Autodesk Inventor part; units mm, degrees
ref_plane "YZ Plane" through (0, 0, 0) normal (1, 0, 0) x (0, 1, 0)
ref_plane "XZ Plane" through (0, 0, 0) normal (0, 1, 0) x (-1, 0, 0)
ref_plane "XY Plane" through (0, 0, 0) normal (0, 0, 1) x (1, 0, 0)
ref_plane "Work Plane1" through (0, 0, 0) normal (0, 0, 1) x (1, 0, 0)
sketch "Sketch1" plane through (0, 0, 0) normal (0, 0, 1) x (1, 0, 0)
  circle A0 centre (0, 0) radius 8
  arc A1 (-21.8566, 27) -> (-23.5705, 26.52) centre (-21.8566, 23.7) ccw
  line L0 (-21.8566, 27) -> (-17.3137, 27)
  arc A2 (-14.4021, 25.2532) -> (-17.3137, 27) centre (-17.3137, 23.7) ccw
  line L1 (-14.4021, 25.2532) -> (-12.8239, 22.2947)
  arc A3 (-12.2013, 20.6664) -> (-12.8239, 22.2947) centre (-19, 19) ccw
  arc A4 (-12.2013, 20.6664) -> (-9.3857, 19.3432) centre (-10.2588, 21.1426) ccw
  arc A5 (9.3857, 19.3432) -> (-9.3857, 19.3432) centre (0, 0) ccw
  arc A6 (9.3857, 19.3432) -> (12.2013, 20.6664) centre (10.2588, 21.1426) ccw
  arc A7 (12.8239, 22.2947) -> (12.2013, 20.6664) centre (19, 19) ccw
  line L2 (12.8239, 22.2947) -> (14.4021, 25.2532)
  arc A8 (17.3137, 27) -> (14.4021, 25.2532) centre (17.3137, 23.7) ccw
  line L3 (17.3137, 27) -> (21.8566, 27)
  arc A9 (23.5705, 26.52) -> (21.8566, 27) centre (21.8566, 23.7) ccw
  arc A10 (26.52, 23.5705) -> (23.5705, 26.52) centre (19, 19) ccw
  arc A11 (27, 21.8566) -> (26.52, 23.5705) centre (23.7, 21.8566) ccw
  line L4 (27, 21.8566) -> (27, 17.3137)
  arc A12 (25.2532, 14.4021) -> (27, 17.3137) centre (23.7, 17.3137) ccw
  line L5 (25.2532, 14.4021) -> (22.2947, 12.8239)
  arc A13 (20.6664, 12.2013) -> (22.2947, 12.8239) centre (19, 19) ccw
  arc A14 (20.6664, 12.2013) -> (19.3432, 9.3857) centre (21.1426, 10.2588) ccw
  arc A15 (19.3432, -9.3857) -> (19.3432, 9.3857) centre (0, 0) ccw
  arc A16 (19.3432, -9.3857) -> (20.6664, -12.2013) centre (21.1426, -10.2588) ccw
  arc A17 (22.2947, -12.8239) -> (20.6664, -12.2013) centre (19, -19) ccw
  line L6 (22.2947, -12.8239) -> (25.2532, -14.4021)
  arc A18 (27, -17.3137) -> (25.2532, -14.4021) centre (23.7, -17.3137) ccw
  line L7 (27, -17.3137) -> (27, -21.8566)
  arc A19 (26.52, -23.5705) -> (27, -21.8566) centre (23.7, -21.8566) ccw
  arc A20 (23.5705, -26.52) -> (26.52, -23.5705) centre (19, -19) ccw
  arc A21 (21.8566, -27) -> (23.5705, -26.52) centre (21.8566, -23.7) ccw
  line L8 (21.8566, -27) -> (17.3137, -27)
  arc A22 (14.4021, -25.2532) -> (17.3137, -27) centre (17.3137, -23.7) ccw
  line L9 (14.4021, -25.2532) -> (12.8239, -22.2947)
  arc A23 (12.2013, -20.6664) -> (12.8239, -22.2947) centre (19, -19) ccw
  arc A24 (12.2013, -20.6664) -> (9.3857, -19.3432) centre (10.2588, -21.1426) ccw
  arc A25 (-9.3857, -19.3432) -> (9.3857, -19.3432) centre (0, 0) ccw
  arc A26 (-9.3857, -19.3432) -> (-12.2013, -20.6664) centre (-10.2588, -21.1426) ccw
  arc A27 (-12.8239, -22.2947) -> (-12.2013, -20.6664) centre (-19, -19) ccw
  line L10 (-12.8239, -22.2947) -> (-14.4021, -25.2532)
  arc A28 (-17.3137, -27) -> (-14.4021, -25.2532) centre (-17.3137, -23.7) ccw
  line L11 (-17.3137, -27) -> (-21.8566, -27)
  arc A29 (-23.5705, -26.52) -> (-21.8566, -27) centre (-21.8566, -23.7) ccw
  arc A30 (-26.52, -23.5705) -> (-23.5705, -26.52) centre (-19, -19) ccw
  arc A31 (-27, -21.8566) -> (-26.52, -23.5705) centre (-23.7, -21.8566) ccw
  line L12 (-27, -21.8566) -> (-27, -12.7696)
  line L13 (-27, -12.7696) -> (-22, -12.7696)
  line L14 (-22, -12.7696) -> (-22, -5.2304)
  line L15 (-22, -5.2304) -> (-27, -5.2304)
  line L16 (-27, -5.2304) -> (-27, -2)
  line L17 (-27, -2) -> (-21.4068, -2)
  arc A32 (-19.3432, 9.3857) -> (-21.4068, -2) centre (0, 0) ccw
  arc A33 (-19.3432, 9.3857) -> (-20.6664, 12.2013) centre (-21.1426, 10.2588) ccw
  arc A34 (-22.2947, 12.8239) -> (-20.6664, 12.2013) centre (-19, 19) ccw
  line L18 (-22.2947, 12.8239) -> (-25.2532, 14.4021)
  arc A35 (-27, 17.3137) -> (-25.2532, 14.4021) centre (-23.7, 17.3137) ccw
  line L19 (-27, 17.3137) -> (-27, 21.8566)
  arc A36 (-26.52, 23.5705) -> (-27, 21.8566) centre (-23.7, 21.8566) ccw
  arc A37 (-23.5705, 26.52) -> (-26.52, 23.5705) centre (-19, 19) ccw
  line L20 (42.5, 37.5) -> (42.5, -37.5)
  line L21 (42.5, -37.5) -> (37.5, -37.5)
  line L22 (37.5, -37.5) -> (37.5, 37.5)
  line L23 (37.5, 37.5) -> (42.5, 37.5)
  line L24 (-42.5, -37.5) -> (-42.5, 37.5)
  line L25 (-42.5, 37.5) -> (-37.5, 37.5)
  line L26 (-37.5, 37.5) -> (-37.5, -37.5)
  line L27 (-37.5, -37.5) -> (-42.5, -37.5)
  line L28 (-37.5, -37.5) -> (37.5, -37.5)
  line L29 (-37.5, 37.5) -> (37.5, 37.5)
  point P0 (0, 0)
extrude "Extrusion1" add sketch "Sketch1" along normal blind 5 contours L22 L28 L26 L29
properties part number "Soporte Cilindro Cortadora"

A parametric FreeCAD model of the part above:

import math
import FreeCAD as App
import Part
import Sketcher
from FreeCAD import Vector

doc = App.newDocument("Part")
body = doc.addObject("PartDesign::Body", "Body")

sketch1 = doc.addObject("Sketcher::SketchObject", "Sketch")
body.addObject(sketch1)
sketch1.AttachmentSupport = (doc.XY_Plane, [""])
sketch1.MapMode = "FlatFace"
sketch1.addGeometry([
    Part.LineSegment(Vector(37.5, -37.5, 0), Vector(37.5, 37.5, 0)),
    Part.LineSegment(Vector(37.5, 37.5, 0), Vector(-37.5, 37.5, 0)),
    Part.LineSegment(Vector(-37.5, 37.5, 0), Vector(-37.5, -37.5, 0)),
    Part.LineSegment(Vector(-37.5, -37.5, 0), Vector(37.5, -37.5, 0)),
    Part.ArcOfCircle(Part.Circle(Vector(-21.8566, 23.7, 0), Vector(0, 0, 1), 3.3), math.radians(90), math.radians(121.28981)),
    Part.LineSegment(Vector(-21.8566, 27, 0), Vector(-17.3137, 27, 0)),
    Part.ArcOfCircle(Part.Circle(Vector(-17.3137, 23.7, 0), Vector(0, 0, 1), 3.299976), math.radians(28.077798), math.radians(90)),
    Part.LineSegment(Vector(-14.4021, 25.2532, 0), Vector(-12.8239, 22.2947, 0)),
    Part.ArcOfCircle(Part.Circle(Vector(-19, 19, 0), Vector(0, 0, 1), 6.999947), math.radians(13.772013), math.radians(28.07812)),
    Part.ArcOfCircle(Part.Circle(Vector(-10.2588, 21.1426, 0), Vector(0, 0, 1), 2.000018), math.radians(-166.2257), math.radians(-64.116536)),
    Part.ArcOfCircle(Part.Circle(Vector(0, 0, 0), Vector(0, 0, 1), 21.500017), math.radians(64.116429), math.radians(115.883571)),
    Part.ArcOfCircle(Part.Circle(Vector(10.2588, 21.1426, 0), Vector(0, 0, 1), 2.000036), math.radians(-115.883464), math.radians(-13.7743)),
    Part.ArcOfCircle(Part.Circle(Vector(19, 19, 0), Vector(0, 0, 1), 6.999944), math.radians(151.92188), math.radians(166.227987)),
    Part.LineSegment(Vector(12.8239, 22.2947, 0), Vector(14.4021, 25.2532, 0)),
    Part.ArcOfCircle(Part.Circle(Vector(17.3137, 23.7, 0), Vector(0, 0, 1), 3.3), math.radians(90), math.radians(151.922202)),
    Part.LineSegment(Vector(17.3137, 27, 0), Vector(21.8566, 27, 0)),
    Part.ArcOfCircle(Part.Circle(Vector(21.8566, 23.7, 0), Vector(0, 0, 1), 3.299978), math.radians(58.71019), math.radians(90)),
    Part.ArcOfCircle(Part.Circle(Vector(19, 19, 0), Vector(0, 0, 1), 8.799993), math.radians(31.290366), math.radians(58.709634)),
    Part.ArcOfCircle(Part.Circle(Vector(23.7, 21.8566, 0), Vector(0, 0, 1), 3.3), math.radians(0), math.radians(31.28981)),
    Part.LineSegment(Vector(27, 21.8566, 0), Vector(27, 17.3137, 0)),
    Part.ArcOfCircle(Part.Circle(Vector(23.7, 17.3137, 0), Vector(0, 0, 1), 3.299976), math.radians(-61.922202), math.radians(0)),
    Part.LineSegment(Vector(25.2532, 14.4021, 0), Vector(22.2947, 12.8239, 0)),
    Part.ArcOfCircle(Part.Circle(Vector(19, 19, 0), Vector(0, 0, 1), 6.999947), math.radians(-76.227987), math.radians(-61.92188)),
    Part.ArcOfCircle(Part.Circle(Vector(21.1426, 10.2588, 0), Vector(0, 0, 1), 2.000018), math.radians(103.7743), math.radians(205.883464)),
    Part.ArcOfCircle(Part.Circle(Vector(0, 0, 0), Vector(0, 0, 1), 21.500017), math.radians(-25.883571), math.radians(25.883571)),
    Part.ArcOfCircle(Part.Circle(Vector(21.1426, -10.2588, 0), Vector(0, 0, 1), 2.000036), math.radians(154.116536), math.radians(256.2257)),
    Part.ArcOfCircle(Part.Circle(Vector(19, -19, 0), Vector(0, 0, 1), 6.999944), math.radians(61.92188), math.radians(76.227987)),
    Part.LineSegment(Vector(22.2947, -12.8239, 0), Vector(25.2532, -14.4021, 0)),
    Part.ArcOfCircle(Part.Circle(Vector(23.7, -17.3137, 0), Vector(0, 0, 1), 3.3), math.radians(0), math.radians(61.922202)),
    Part.LineSegment(Vector(27, -17.3137, 0), Vector(27, -21.8566, 0)),
    Part.ArcOfCircle(Part.Circle(Vector(23.7, -21.8566, 0), Vector(0, 0, 1), 3.299978), math.radians(-31.28981), math.radians(0)),
    Part.ArcOfCircle(Part.Circle(Vector(19, -19, 0), Vector(0, 0, 1), 8.799993), math.radians(-58.709634), math.radians(-31.290366)),
    Part.ArcOfCircle(Part.Circle(Vector(21.8566, -23.7, 0), Vector(0, 0, 1), 3.3), math.radians(-90), math.radians(-58.71019)),
    Part.LineSegment(Vector(21.8566, -27, 0), Vector(17.3137, -27, 0)),
    Part.ArcOfCircle(Part.Circle(Vector(17.3137, -23.7, 0), Vector(0, 0, 1), 3.299976), math.radians(-151.922202), math.radians(-90)),
    Part.LineSegment(Vector(14.4021, -25.2532, 0), Vector(12.8239, -22.2947, 0)),
    Part.ArcOfCircle(Part.Circle(Vector(19, -19, 0), Vector(0, 0, 1), 6.999947), math.radians(-166.227987), math.radians(-151.92188)),
    Part.ArcOfCircle(Part.Circle(Vector(10.2588, -21.1426, 0), Vector(0, 0, 1), 2.000018), math.radians(13.7743), math.radians(115.883464)),
    Part.ArcOfCircle(Part.Circle(Vector(0, 0, 0), Vector(0, 0, 1), 21.500017), math.radians(-115.883571), math.radians(-64.116429)),
    Part.ArcOfCircle(Part.Circle(Vector(-10.2588, -21.1426, 0), Vector(0, 0, 1), 2.000036), math.radians(64.116536), math.radians(166.2257)),
    Part.ArcOfCircle(Part.Circle(Vector(-19, -19, 0), Vector(0, 0, 1), 6.999947), math.radians(-28.07812), math.radians(-13.772013)),
    Part.LineSegment(Vector(-12.8239, -22.2947, 0), Vector(-14.4021, -25.2532, 0)),
    Part.ArcOfCircle(Part.Circle(Vector(-17.3137, -23.7, 0), Vector(0, 0, 1), 3.3), math.radians(-90), math.radians(-28.077798)),
    Part.LineSegment(Vector(-17.3137, -27, 0), Vector(-21.8566, -27, 0)),
    Part.ArcOfCircle(Part.Circle(Vector(-21.8566, -23.7, 0), Vector(0, 0, 1), 3.299978), math.radians(-121.28981), math.radians(-90)),
    Part.ArcOfCircle(Part.Circle(Vector(-19, -19, 0), Vector(0, 0, 1), 8.799993), math.radians(-148.709634), math.radians(-121.290366)),
    Part.ArcOfCircle(Part.Circle(Vector(-23.7, -21.8566, 0), Vector(0, 0, 1), 3.3), math.radians(180), math.radians(211.28981)),
    Part.LineSegment(Vector(-27, -21.8566, 0), Vector(-27, -12.7696, 0)),
    Part.LineSegment(Vector(-27, -12.7696, 0), Vector(-22, -12.7696, 0)),
    Part.LineSegment(Vector(-22, -12.7696, 0), Vector(-22, -5.2304, 0)),
    Part.LineSegment(Vector(-22, -5.2304, 0), Vector(-27, -5.2304, 0)),
    Part.LineSegment(Vector(-27, -5.2304, 0), Vector(-27, -2, 0)),
    Part.LineSegment(Vector(-27, -2, 0), Vector(-21.4068, -2, 0)),
    Part.ArcOfCircle(Part.Circle(Vector(0, 0, 0), Vector(0, 0, 1), 21.500017), math.radians(154.116429), math.radians(185.337551)),
    Part.ArcOfCircle(Part.Circle(Vector(-21.1426, 10.2588, 0), Vector(0, 0, 1), 2.000036), math.radians(-25.883464), math.radians(76.2257)),
    Part.ArcOfCircle(Part.Circle(Vector(-19, 19, 0), Vector(0, 0, 1), 6.999944), math.radians(-118.07812), math.radians(-103.772013)),
    Part.LineSegment(Vector(-22.2947, 12.8239, 0), Vector(-25.2532, 14.4021, 0)),
    Part.ArcOfCircle(Part.Circle(Vector(-23.7, 17.3137, 0), Vector(0, 0, 1), 3.3), math.radians(180), math.radians(241.922202)),
    Part.LineSegment(Vector(-27, 17.3137, 0), Vector(-27, 21.8566, 0)),
    Part.ArcOfCircle(Part.Circle(Vector(-23.7, 21.8566, 0), Vector(0, 0, 1), 3.299978), math.radians(148.71019), math.radians(180)),
    Part.ArcOfCircle(Part.Circle(Vector(-19, 19, 0), Vector(0, 0, 1), 8.799993), math.radians(121.290366), math.radians(148.709634)),
], False)
sketch1.addConstraint([
    Sketcher.Constraint("Coincident", 0, 2, 1, 1),
    Sketcher.Constraint("Coincident", 1, 2, 2, 1),
    Sketcher.Constraint("Coincident", 2, 2, 3, 1),
    Sketcher.Constraint("Coincident", 3, 2, 0, 1),
    Sketcher.Constraint("Tangent", 4, 1, 5, 1),
    Sketcher.Constraint("Tangent", 5, 2, 6, 2),
    Sketcher.Constraint("Tangent", 6, 1, 7, 1),
    Sketcher.Constraint("Tangent", 7, 2, 8, 2),
    Sketcher.Constraint("Tangent", 8, 1, 9, 1),
    Sketcher.Constraint("Tangent", 9, 2, 10, 2),
    Sketcher.Constraint("Tangent", 10, 1, 11, 1),
    Sketcher.Constraint("Tangent", 11, 2, 12, 2),
    Sketcher.Constraint("Tangent", 12, 1, 13, 1),
    Sketcher.Constraint("Tangent", 13, 2, 14, 2),
    Sketcher.Constraint("Tangent", 14, 1, 15, 1),
    Sketcher.Constraint("Tangent", 15, 2, 16, 2),
    Sketcher.Constraint("Tangent", 16, 1, 17, 2),
    Sketcher.Constraint("Tangent", 17, 1, 18, 2),
    Sketcher.Constraint("Tangent", 18, 1, 19, 1),
    Sketcher.Constraint("Tangent", 19, 2, 20, 2),
    Sketcher.Constraint("Tangent", 20, 1, 21, 1),
    Sketcher.Constraint("Tangent", 21, 2, 22, 2),
    Sketcher.Constraint("Tangent", 22, 1, 23, 1),
    Sketcher.Constraint("Tangent", 23, 2, 24, 2),
    Sketcher.Constraint("Tangent", 24, 1, 25, 1),
    Sketcher.Constraint("Tangent", 25, 2, 26, 2),
    Sketcher.Constraint("Tangent", 26, 1, 27, 1),
    Sketcher.Constraint("Tangent", 27, 2, 28, 2),
    Sketcher.Constraint("Tangent", 28, 1, 29, 1),
    Sketcher.Constraint("Tangent", 29, 2, 30, 2),
    Sketcher.Constraint("Tangent", 30, 1, 31, 2),
    Sketcher.Constraint("Tangent", 31, 1, 32, 2),
    Sketcher.Constraint("Tangent", 32, 1, 33, 1),
    Sketcher.Constraint("Tangent", 33, 2, 34, 2),
    Sketcher.Constraint("Tangent", 34, 1, 35, 1),
    Sketcher.Constraint("Tangent", 35, 2, 36, 2),
    Sketcher.Constraint("Tangent", 36, 1, 37, 1),
    Sketcher.Constraint("Tangent", 37, 2, 38, 2),
    Sketcher.Constraint("Tangent", 38, 1, 39, 1),
    Sketcher.Constraint("Tangent", 39, 2, 40, 2),
    Sketcher.Constraint("Tangent", 40, 1, 41, 1),
    Sketcher.Constraint("Tangent", 41, 2, 42, 2),
    Sketcher.Constraint("Tangent", 42, 1, 43, 1),
    Sketcher.Constraint("Tangent", 43, 2, 44, 2),
    Sketcher.Constraint("Tangent", 44, 1, 45, 2),
    Sketcher.Constraint("Tangent", 45, 1, 46, 2),
    Sketcher.Constraint("Tangent", 46, 1, 47, 1),
    Sketcher.Constraint("Coincident", 47, 2, 48, 1),
    Sketcher.Constraint("Coincident", 48, 2, 49, 1),
    Sketcher.Constraint("Coincident", 49, 2, 50, 1),
    Sketcher.Constraint("Coincident", 50, 2, 51, 1),
    Sketcher.Constraint("Coincident", 51, 2, 52, 1),
    Sketcher.Constraint("Coincident", 52, 2, 53, 2),
    Sketcher.Constraint("Tangent", 53, 1, 54, 1),
    Sketcher.Constraint("Tangent", 54, 2, 55, 2),
    Sketcher.Constraint("Tangent", 55, 1, 56, 1),
    Sketcher.Constraint("Tangent", 56, 2, 57, 2),
    Sketcher.Constraint("Tangent", 57, 1, 58, 1),
    Sketcher.Constraint("Tangent", 58, 2, 59, 2),
    Sketcher.Constraint("Tangent", 59, 1, 60, 2),
    Sketcher.Constraint("Tangent", 60, 1, 4, 2),
    Sketcher.Constraint("Vertical", 0),
    Sketcher.Constraint("Horizontal", 1),
    Sketcher.Constraint("Vertical", 2),
    Sketcher.Constraint("Horizontal", 3),
    Sketcher.Constraint("Horizontal", 5),
    Sketcher.Constraint("Horizontal", 15),
    Sketcher.Constraint("Vertical", 19),
    Sketcher.Constraint("Vertical", 29),
    Sketcher.Constraint("Horizontal", 33),
    Sketcher.Constraint("Horizontal", 43),
    Sketcher.Constraint("Vertical", 47),
    Sketcher.Constraint("Horizontal", 48),
    Sketcher.Constraint("Vertical", 49),
    Sketcher.Constraint("Horizontal", 50),
    Sketcher.Constraint("Vertical", 51),
    Sketcher.Constraint("Horizontal", 52),
    Sketcher.Constraint("Vertical", 58),
    Sketcher.Constraint("Coincident", 10, 3, -1, 1),
    Sketcher.Constraint("Coincident", 24, 3, -1, 1),
    Sketcher.Constraint("Coincident", 38, 3, -1, 1),
    Sketcher.Constraint("Coincident", 53, 3, -1, 1),
    Sketcher.Constraint("Coincident", 17, 3, 12, 3),
    Sketcher.Constraint("Coincident", 22, 3, 12, 3),
    Sketcher.Constraint("Coincident", 31, 3, 26, 3),
    Sketcher.Constraint("Coincident", 36, 3, 26, 3),
    Sketcher.Constraint("Coincident", 45, 3, 40, 3),
    Sketcher.Constraint("Coincident", 55, 3, 8, 3),
    Sketcher.Constraint("Coincident", 60, 3, 8, 3),
    Sketcher.Constraint("Equal", 4, 6),
    Sketcher.Constraint("Equal", 9, 11),
    Sketcher.Constraint("Equal", 8, 12),
    Sketcher.Constraint("Equal", 6, 14),
    Sketcher.Constraint("Equal", 14, 16),
    Sketcher.Constraint("Equal", 16, 18),
    Sketcher.Constraint("Equal", 18, 20),
    Sketcher.Constraint("Equal", 12, 22),
    Sketcher.Constraint("Equal", 11, 23),
    Sketcher.Constraint("Equal", 10, 24),
    Sketcher.Constraint("Equal", 23, 25),
    Sketcher.Constraint("Equal", 22, 26),
    Sketcher.Constraint("Equal", 20, 28),
    Sketcher.Constraint("Equal", 28, 30),
    Sketcher.Constraint("Equal", 17, 31),
    Sketcher.Constraint("Equal", 30, 32),
    Sketcher.Constraint("Equal", 32, 34),
    Sketcher.Constraint("Equal", 26, 36),
    Sketcher.Constraint("Equal", 25, 37),
    Sketcher.Constraint("Equal", 24, 38),
    Sketcher.Constraint("Equal", 37, 39),
    Sketcher.Constraint("Equal", 36, 40),
    Sketcher.Constraint("Equal", 34, 42),
    Sketcher.Constraint("Equal", 42, 44),
    Sketcher.Constraint("Equal", 31, 45),
    Sketcher.Constraint("Equal", 44, 46),
    Sketcher.Constraint("Equal", 38, 53),
    Sketcher.Constraint("Equal", 39, 54),
    Sketcher.Constraint("Equal", 40, 55),
    Sketcher.Constraint("Equal", 46, 57),
    Sketcher.Constraint("Equal", 57, 59),
    Sketcher.Constraint("Equal", 45, 60),
    Sketcher.Constraint("Symmetric", 8, 3, 26, 3, -1, 1),
    Sketcher.Constraint("Symmetric", 6, 3, 34, 3, -1, 1),
    Sketcher.Constraint("Symmetric", 12, 3, 40, 3, -1, 1),
    Sketcher.Constraint("Symmetric", 14, 3, 42, 3, -1, 1),
    Sketcher.Constraint("Symmetric", 28, 3, 57, 3, -1, 1),
    Sketcher.Constraint("Symmetric", 0, 2, 2, 2, -1, 1),
    Sketcher.Constraint("Symmetric", 8, 3, 12, 3, -2),
    Sketcher.Constraint("Symmetric", 6, 3, 14, 3, -2),
    Sketcher.Constraint("Symmetric", 20, 3, 57, 3, -2),
    Sketcher.Constraint("Perpendicular", 7, 21),
    Sketcher.Constraint("Horizontal", 30, 3, 46, 3),
    Sketcher.Constraint("Vertical", 47, 2, 50, 2),
    Sketcher.Constraint("Equal", 3, 0),
    Sketcher.Constraint("Equal", 43, 19),
    Sketcher.Constraint("Radius", 8, 7.0),
    Sketcher.Constraint("Radius", 9, 2.0),
    Sketcher.Constraint("Radius", 4, 3.3),
    Sketcher.Constraint("Radius", 10, 21.5),
    Sketcher.Constraint("Radius", 17, 8.8),
    Sketcher.Constraint("DistanceX", 1, 2, 1, 1, 75.0),
    Sketcher.Constraint("DistanceX", 48, 1, 48, 2, 5.0),
    Sketcher.Constraint("DistanceX", 8, 3, -1, 1, 19.0),
    Sketcher.Constraint("DistanceY", -1, 1, 8, 3, 19.0),
    Sketcher.Constraint("DistanceY", -1, 1, 4, 1, 27.0),
    Sketcher.Constraint("DistanceY", 51, 2, -1, 1, 2.0),
    Sketcher.Constraint("DistanceX", 5, 1, 5, 2, 4.543),
    Sketcher.Constraint("DistanceY", 47, 1, 47, 2, 9.087),
    Sketcher.Constraint("DistanceY", 49, 1, 49, 2, 7.5392),
])
pad1 = doc.addObject("PartDesign::Pad", "Pad")
body.addObject(pad1)
pad1.Profile = sketch1
pad1.Length = 5

doc.recompute()
